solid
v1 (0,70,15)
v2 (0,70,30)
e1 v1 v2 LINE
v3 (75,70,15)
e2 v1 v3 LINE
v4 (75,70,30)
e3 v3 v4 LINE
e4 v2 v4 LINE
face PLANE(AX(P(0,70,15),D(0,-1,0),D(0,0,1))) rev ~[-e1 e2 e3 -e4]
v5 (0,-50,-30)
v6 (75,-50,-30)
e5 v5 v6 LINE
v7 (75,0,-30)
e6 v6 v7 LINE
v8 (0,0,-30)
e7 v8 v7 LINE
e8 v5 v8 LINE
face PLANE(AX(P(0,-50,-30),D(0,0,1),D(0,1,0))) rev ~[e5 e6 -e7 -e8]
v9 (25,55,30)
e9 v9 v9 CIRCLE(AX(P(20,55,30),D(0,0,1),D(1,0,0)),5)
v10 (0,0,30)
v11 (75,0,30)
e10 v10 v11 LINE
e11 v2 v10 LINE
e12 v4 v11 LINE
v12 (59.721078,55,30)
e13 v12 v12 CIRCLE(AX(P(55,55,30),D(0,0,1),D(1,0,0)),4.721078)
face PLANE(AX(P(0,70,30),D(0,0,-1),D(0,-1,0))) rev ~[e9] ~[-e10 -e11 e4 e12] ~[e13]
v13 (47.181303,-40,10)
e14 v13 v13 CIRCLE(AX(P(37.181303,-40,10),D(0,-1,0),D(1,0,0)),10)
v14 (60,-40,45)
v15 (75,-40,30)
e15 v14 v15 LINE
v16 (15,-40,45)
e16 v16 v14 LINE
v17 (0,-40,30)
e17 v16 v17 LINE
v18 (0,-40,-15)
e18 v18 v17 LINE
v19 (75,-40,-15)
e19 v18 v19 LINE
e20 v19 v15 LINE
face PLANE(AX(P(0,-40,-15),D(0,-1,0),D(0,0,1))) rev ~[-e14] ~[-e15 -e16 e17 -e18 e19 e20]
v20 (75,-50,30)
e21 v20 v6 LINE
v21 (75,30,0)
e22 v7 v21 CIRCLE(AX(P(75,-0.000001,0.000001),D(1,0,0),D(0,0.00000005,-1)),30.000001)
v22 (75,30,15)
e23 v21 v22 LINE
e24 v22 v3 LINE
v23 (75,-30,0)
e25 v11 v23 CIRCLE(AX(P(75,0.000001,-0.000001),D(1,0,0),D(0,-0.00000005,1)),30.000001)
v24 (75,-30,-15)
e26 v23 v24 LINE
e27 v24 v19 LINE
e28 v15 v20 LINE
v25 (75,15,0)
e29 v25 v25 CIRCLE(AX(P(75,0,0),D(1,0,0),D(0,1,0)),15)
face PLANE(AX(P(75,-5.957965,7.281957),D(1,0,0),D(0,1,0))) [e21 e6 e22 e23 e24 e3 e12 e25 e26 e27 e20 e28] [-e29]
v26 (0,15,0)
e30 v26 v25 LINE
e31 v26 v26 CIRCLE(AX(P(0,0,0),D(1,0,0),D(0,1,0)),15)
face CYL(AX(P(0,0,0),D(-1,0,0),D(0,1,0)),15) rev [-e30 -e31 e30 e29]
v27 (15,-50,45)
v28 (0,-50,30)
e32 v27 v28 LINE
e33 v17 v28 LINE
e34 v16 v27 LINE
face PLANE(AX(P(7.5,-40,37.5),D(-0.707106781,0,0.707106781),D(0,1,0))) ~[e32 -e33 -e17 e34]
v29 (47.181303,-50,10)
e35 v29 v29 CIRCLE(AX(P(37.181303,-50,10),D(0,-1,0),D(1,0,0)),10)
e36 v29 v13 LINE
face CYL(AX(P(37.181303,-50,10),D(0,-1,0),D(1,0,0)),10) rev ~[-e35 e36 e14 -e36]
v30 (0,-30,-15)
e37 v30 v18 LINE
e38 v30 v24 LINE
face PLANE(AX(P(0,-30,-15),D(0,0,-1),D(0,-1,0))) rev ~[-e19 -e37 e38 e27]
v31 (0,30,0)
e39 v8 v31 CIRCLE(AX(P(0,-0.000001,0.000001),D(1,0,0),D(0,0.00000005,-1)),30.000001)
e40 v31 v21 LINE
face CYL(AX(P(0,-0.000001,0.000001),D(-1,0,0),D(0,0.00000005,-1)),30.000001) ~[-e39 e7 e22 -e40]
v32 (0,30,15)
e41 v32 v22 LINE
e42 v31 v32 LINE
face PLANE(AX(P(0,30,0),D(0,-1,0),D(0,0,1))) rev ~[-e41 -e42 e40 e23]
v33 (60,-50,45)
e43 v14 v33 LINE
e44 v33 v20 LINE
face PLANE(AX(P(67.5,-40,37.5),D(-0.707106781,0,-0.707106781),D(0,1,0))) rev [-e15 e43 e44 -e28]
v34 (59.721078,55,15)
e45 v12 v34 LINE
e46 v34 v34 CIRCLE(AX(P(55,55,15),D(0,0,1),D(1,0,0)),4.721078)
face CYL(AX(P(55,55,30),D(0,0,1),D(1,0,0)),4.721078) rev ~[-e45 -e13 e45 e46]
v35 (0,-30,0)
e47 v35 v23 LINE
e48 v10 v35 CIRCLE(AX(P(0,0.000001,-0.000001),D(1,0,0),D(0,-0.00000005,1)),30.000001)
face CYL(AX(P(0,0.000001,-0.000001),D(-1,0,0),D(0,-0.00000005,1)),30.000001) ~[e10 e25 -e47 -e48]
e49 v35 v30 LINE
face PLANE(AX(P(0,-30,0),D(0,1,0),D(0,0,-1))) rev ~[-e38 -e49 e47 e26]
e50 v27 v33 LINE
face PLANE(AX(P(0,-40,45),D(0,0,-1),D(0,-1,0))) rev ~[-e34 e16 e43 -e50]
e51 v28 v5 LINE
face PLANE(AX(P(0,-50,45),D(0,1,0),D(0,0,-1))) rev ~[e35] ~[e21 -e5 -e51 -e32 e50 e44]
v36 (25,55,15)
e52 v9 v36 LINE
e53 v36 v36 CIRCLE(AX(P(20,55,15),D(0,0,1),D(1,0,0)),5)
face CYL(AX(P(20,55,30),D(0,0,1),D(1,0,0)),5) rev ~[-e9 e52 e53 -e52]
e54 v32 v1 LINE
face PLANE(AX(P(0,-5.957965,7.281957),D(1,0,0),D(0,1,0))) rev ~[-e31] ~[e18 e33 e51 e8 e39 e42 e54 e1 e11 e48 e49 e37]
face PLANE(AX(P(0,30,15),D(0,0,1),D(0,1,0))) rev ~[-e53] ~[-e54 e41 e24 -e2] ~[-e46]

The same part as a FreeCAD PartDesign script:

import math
import FreeCAD as App
import Part
import Sketcher
Q = App.Units.Quantity


def edges_at(feature, points):
    """Names of the edges that pass closest to the given points."""
    edges = feature.Shape.Edges
    near = lambda p: min(range(len(edges)), key=lambda i: edges[i].distToShape(Part.Vertex(*p))[0])
    return sorted({f"Edge{near(p) + 1}" for p in points})

doc = App.newDocument("Part")
body = doc.addObject("PartDesign::Body", "Body")

# Sketch on YZ plane
sketch1 = body.newObject("Sketcher::SketchObject", "Sketch")
sketch1.AttachmentSupport = (doc.getObject("YZ_Plane"), [""])
sketch1.MapMode = "FlatFace"
sketch1.addGeometry([
    Part.LineSegment(App.Vector(-50, -30, 0), App.Vector(0, -30, 0)),  # 0
    Part.ArcOfCircle(Part.Circle(App.Vector(0, 0, 0), App.Vector(0, 0, 1), 30), math.radians(-90), math.radians(0)),  # 1
    Part.LineSegment(App.Vector(30, 0, 0), App.Vector(30, 15, 0)),  # 2
    Part.LineSegment(App.Vector(30, 15, 0), App.Vector(70, 15, 0)),  # 3
    Part.LineSegment(App.Vector(70, 15, 0), App.Vector(70, 30, 0)),  # 4
    Part.LineSegment(App.Vector(70, 30, 0), App.Vector(0, 30, 0)),  # 5
    Part.ArcOfCircle(Part.Circle(App.Vector(0, 0, 0), App.Vector(0, 0, 1), 30), math.radians(90), math.radians(180)),  # 6
    Part.LineSegment(App.Vector(-30, 0, 0), App.Vector(-30, -15, 0)),  # 7
    Part.LineSegment(App.Vector(-30, -15, 0), App.Vector(-40, -15, 0)),  # 8
    Part.LineSegment(App.Vector(-40, -15, 0), App.Vector(-40, 45, 0)),  # 9
    Part.LineSegment(App.Vector(-40, 45, 0), App.Vector(-50, 45, 0)),  # 10
    Part.LineSegment(App.Vector(-50, 45, 0), App.Vector(-50, -30, 0)),  # 11
    Part.Circle(App.Vector(0, 0, 0), App.Vector(0, 0, 1), 15),  # 12
], False)
sketch1.addConstraint([
    Sketcher.Constraint("Tangent", 0, 2, 1, 1),
    Sketcher.Constraint("Tangent", 1, 2, 2, 1),
    Sketcher.Constraint("Coincident", 2, 2, 3, 1),
    Sketcher.Constraint("Coincident", 3, 2, 4, 1),
    Sketcher.Constraint("Coincident", 4, 2, 5, 1),
    Sketcher.Constraint("Tangent", 5, 2, 6, 1),
    Sketcher.Constraint("Tangent", 6, 2, 7, 1),
    Sketcher.Constraint("Coincident", 7, 2, 8, 1),
    Sketcher.Constraint("Coincident", 8, 2, 9, 1),
    Sketcher.Constraint("Coincident", 9, 2, 10, 1),
    Sketcher.Constraint("Coincident", 10, 2, 11, 1),
    Sketcher.Constraint("Coincident", 11, 2, 0, 1),
    Sketcher.Constraint("Horizontal", 0),
    Sketcher.Constraint("Vertical", 2),
    Sketcher.Constraint("Horizontal", 3),
    Sketcher.Constraint("Vertical", 4),
    Sketcher.Constraint("Horizontal", 5),
    Sketcher.Constraint("Vertical", 7),
    Sketcher.Constraint("Horizontal", 8),
    Sketcher.Constraint("Vertical", 9),
    Sketcher.Constraint("Horizontal", 10),
    Sketcher.Constraint("Vertical", 11),
    Sketcher.Constraint("Coincident", 1, 3, -1, 1),
    Sketcher.Constraint("Coincident", 6, 3, -1, 1),
    Sketcher.Constraint("Coincident", 12, 3, -1, 1),
    Sketcher.Constraint("Equal", 1, 6),
    Sketcher.Constraint("Equal", 8, 10),
    Sketcher.Constraint("Equal", 2, 4),
    Sketcher.Constraint("Equal", 4, 7),
    Sketcher.Constraint("Diameter", 12, Q("30 mm")),
    Sketcher.Constraint("Radius", 1, Q("30.000001 mm")),
    Sketcher.Constraint("DistanceX", 0, 1, 0, 2, Q("50 mm")),
    Sketcher.Constraint("DistanceX", 3, 1, 3, 2, Q("40 mm")),
    Sketcher.Constraint("DistanceY", 9, 1, 9, 2, Q("60 mm")),
])
pad1 = body.newObject("PartDesign::Pad", "Pad")
pad1.Profile = sketch1
pad1.Length = 75
doc.recompute()

chamfer = body.newObject("PartDesign::Chamfer", "Chamfer")
chamfer.Base = (pad1, edges_at(pad1, [(75, -45, 45)]))
chamfer.Size = 15
doc.recompute()

chamfer2 = body.newObject("PartDesign::Chamfer", "Chamfer001")
chamfer2.Base = (chamfer, edges_at(chamfer, [(0, -45, 45)]))
chamfer2.Size = 15

# Sketch on XZ plane
sketch2 = body.newObject("Sketcher::SketchObject", "Sketch001")
sketch2.AttachmentSupport = (doc.getObject("XZ_Plane"), [""])
sketch2.MapMode = "FlatFace"
sketch2.AttachmentOffset = App.Placement(App.Vector(0, 0, 50), App.Rotation())
sketch2.addGeometry(Part.Circle(App.Vector(37, 10, 0), App.Vector(0, 0, 1), 10), False)
sketch2.addConstraint([
    Sketcher.Constraint("Diameter", 0, Q("20 mm")),
    Sketcher.Constraint("DistanceY", -1, 1, 0, 3, Q("10 mm")),
    Sketcher.Constraint("DistanceX", -1, 1, 0, 3, Q("37.181303 mm")),
])
pocket1 = body.newObject("PartDesign::Pocket", "Pocket")
pocket1.Profile = sketch2
pocket1.Length = 15

# Sketch on XY plane
sketch3 = body.newObject("Sketcher::SketchObject", "Sketch002")
sketch3.AttachmentSupport = (doc.getObject("XY_Plane"), [""])
sketch3.MapMode = "FlatFace"
sketch3.AttachmentOffset = App.Placement(App.Vector(0, 0, 30), App.Rotation())
sketch3.addGeometry([
    Part.Circle(App.Vector(55, 55, 0), App.Vector(0, 0, 1), 4.7),
    Part.Circle(App.Vector(20, 55, 0), App.Vector(0, 0, 1), 5),
], False)
sketch3.addConstraint([
    Sketcher.Constraint("Horizontal", 0, 3, 1, 3),
    Sketcher.Constraint("Diameter", 1, Q("10 mm")),
    Sketcher.Constraint("DistanceX", -1, 1, 0, 3, Q("55 mm")),
    Sketcher.Constraint("DistanceY", -1, 1, 0, 3, Q("55 mm")),
    Sketcher.Constraint("DistanceX", -1, 1, 1, 3, Q("20 mm")),
    Sketcher.Constraint("Diameter", 0, Q("9.442156 mm")),
])
pocket2 = body.newObject("PartDesign::Pocket", "Pocket001")
pocket2.Profile = sketch3
pocket2.Length = 15

doc.recompute()
